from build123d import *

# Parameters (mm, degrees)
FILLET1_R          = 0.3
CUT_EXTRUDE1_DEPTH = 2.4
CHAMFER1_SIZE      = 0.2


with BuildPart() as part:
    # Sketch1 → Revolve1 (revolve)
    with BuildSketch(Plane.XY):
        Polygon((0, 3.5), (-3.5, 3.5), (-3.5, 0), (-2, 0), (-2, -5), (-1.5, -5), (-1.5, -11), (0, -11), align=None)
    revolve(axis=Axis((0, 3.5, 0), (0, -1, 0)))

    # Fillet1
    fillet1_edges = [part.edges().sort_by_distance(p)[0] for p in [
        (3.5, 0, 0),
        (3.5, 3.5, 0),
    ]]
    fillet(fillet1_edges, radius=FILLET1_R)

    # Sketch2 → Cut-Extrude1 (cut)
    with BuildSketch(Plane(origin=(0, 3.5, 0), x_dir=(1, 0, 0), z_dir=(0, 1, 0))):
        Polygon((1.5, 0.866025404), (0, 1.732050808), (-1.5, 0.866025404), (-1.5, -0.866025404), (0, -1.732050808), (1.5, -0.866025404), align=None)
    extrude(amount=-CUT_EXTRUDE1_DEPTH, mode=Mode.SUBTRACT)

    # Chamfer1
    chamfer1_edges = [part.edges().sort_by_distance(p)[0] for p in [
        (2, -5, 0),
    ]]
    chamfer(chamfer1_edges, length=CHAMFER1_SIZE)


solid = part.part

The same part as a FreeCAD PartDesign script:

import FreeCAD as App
import Part
import Sketcher

V = App.Vector
Q = App.Units.Quantity


def edges_at(feature, points):
    """Names of the edges that pass closest to the given points."""
    edges = feature.Shape.Edges
    near = lambda p: min(range(len(edges)), key=lambda i: edges[i].distToShape(Part.Vertex(*p))[0])
    return sorted({f"Edge{near(p) + 1}" for p in points})

doc = App.newDocument("Part")
body = doc.addObject("PartDesign::Body", "Body")

# Sketch on XY plane
sketch1 = body.newObject("Sketcher::SketchObject", "Sketch")
sketch1.AttachmentSupport = (doc.getObject("XY_Plane"), [""])
sketch1.MapMode = "FlatFace"
sketch1.addGeometry([
    Part.LineSegment(V(0, 3.5, 0), V(-3.5, 3.5, 0)),  # 0
    Part.LineSegment(V(-3.5, 3.5, 0), V(-3.5, 0, 0)),  # 1
    Part.LineSegment(V(-3.5, 0, 0), V(-2, 0, 0)),  # 2
    Part.LineSegment(V(-2, 0, 0), V(-2, -5, 0)),  # 3
    Part.LineSegment(V(-2, -5, 0), V(-1.5, -5, 0)),  # 4
    Part.LineSegment(V(-1.5, -5, 0), V(-1.5, -11, 0)),  # 5
    Part.LineSegment(V(-1.5, -11, 0), V(0, -11, 0)),  # 6
    Part.LineSegment(V(0, -11, 0), V(0, 3.5, 0)),  # 7
], False)
sketch1.addConstraint([
    Sketcher.Constraint("Coincident", 0, 2, 1, 1),
    Sketcher.Constraint("Coincident", 1, 2, 2, 1),
    Sketcher.Constraint("Coincident", 2, 2, 3, 1),
    Sketcher.Constraint("Coincident", 3, 2, 4, 1),
    Sketcher.Constraint("Coincident", 4, 2, 5, 1),
    Sketcher.Constraint("Coincident", 5, 2, 6, 1),
    Sketcher.Constraint("Coincident", 6, 2, 7, 1),
    Sketcher.Constraint("Coincident", 7, 2, 0, 1),
    Sketcher.Constraint("Horizontal", 0),
    Sketcher.Constraint("Vertical", 1),
    Sketcher.Constraint("Horizontal", 2),
    Sketcher.Constraint("Vertical", 3),
    Sketcher.Constraint("Horizontal", 4),
    Sketcher.Constraint("Vertical", 5),
    Sketcher.Constraint("Horizontal", 6),
    Sketcher.Constraint("Vertical", 7),
    Sketcher.Constraint("PointOnObject", 1, 2, -1),
    Sketcher.Constraint("PointOnObject", 6, 2, -2),
    Sketcher.Constraint("Equal", 2, 6),
    Sketcher.Constraint("Equal", 0, 1),
    Sketcher.Constraint("DistanceY", 3, 2, 3, 1, Q("5 mm")),
    Sketcher.Constraint("DistanceY", 5, 2, 5, 1, Q("6 mm")),
    Sketcher.Constraint("DistanceX", 0, 2, 0, 1, Q("3.5 mm")),
    Sketcher.Constraint("DistanceX", 2, 1, 2, 2, Q("1.5 mm")),
])
revolution = body.newObject("PartDesign::Revolution", "Revolution")
revolution.Profile = sketch1
revolution.ReferenceAxis = (sketch1, ["V_Axis"])
revolution.Angle = 360
doc.recompute()

fillet = body.newObject("PartDesign::Fillet", "Fillet")
fillet.Base = (revolution, edges_at(revolution, [(3.5, 0, 0), (3.5, 3.5, 0)]))
fillet.Radius = 0.3

# Sketch on XZ plane
sketch2 = body.newObject("Sketcher::SketchObject", "Sketch001")
sketch2.AttachmentSupport = (doc.getObject("XZ_Plane"), [""])
sketch2.MapMode = "FlatFace"
sketch2.AttachmentOffset = App.Placement(V(0, 0, -3.5), App.Rotation())
sketch2.addGeometry([
    Part.LineSegment(V(1.5, -0.866025, 0), V(0, -1.732051, 0)),  # 0
    Part.LineSegment(V(0, -1.732051, 0), V(-1.5, -0.866025, 0)),  # 1
    Part.LineSegment(V(-1.5, -0.866025, 0), V(-1.5, 0.866025, 0)),  # 2
    Part.LineSegment(V(-1.5, 0.866025, 0), V(0, 1.732051, 0)),  # 3
    Part.LineSegment(V(0, 1.732051, 0), V(1.5, 0.866025, 0)),  # 4
    Part.LineSegment(V(1.5, 0.866025, 0), V(1.5, -0.866025, 0)),  # 5
], False)
sketch2.addConstraint([
    Sketcher.Constraint("Coincident", 0, 2, 1, 1),
    Sketcher.Constraint("Coincident", 1, 2, 2, 1),
    Sketcher.Constraint("Coincident", 2, 2, 3, 1),
    Sketcher.Constraint("Coincident", 3, 2, 4, 1),
    Sketcher.Constraint("Coincident", 4, 2, 5, 1),
    Sketcher.Constraint("Coincident", 5, 2, 0, 1),
    Sketcher.Constraint("Vertical", 2),
    Sketcher.Constraint("Vertical", 5),
    Sketcher.Constraint("Symmetric", 0, 2, 3, 2, -1, 1),
    Sketcher.Constraint("Symmetric", 1, 2, 4, 2, -1, 1),
    Sketcher.Constraint("PointOnObject", 0, 2, -2),
    Sketcher.Constraint("Parallel", 0, 3),
    Sketcher.Constraint("Horizontal", 2, 2, 4, 2),
    Sketcher.Constraint("Angle", 0, Q("-150 deg")),
    Sketcher.Constraint("DistanceX", 2, 2, 4, 2, Q("3 mm")),
    Sketcher.Constraint("DistanceY", 2, 1, 2, 2, Q("1.732051 mm")),
])
pocket1 = body.newObject("PartDesign::Pocket", "Pocket")
pocket1.Profile = sketch2
pocket1.Length = 2.4
pocket1.Reversed = True
doc.recompute()

chamfer = body.newObject("PartDesign::Chamfer", "Chamfer")
chamfer.Base = (pocket1, edges_at(pocket1, [(2, -5, 0)]))
chamfer.Size = 0.2

doc.recompute()
